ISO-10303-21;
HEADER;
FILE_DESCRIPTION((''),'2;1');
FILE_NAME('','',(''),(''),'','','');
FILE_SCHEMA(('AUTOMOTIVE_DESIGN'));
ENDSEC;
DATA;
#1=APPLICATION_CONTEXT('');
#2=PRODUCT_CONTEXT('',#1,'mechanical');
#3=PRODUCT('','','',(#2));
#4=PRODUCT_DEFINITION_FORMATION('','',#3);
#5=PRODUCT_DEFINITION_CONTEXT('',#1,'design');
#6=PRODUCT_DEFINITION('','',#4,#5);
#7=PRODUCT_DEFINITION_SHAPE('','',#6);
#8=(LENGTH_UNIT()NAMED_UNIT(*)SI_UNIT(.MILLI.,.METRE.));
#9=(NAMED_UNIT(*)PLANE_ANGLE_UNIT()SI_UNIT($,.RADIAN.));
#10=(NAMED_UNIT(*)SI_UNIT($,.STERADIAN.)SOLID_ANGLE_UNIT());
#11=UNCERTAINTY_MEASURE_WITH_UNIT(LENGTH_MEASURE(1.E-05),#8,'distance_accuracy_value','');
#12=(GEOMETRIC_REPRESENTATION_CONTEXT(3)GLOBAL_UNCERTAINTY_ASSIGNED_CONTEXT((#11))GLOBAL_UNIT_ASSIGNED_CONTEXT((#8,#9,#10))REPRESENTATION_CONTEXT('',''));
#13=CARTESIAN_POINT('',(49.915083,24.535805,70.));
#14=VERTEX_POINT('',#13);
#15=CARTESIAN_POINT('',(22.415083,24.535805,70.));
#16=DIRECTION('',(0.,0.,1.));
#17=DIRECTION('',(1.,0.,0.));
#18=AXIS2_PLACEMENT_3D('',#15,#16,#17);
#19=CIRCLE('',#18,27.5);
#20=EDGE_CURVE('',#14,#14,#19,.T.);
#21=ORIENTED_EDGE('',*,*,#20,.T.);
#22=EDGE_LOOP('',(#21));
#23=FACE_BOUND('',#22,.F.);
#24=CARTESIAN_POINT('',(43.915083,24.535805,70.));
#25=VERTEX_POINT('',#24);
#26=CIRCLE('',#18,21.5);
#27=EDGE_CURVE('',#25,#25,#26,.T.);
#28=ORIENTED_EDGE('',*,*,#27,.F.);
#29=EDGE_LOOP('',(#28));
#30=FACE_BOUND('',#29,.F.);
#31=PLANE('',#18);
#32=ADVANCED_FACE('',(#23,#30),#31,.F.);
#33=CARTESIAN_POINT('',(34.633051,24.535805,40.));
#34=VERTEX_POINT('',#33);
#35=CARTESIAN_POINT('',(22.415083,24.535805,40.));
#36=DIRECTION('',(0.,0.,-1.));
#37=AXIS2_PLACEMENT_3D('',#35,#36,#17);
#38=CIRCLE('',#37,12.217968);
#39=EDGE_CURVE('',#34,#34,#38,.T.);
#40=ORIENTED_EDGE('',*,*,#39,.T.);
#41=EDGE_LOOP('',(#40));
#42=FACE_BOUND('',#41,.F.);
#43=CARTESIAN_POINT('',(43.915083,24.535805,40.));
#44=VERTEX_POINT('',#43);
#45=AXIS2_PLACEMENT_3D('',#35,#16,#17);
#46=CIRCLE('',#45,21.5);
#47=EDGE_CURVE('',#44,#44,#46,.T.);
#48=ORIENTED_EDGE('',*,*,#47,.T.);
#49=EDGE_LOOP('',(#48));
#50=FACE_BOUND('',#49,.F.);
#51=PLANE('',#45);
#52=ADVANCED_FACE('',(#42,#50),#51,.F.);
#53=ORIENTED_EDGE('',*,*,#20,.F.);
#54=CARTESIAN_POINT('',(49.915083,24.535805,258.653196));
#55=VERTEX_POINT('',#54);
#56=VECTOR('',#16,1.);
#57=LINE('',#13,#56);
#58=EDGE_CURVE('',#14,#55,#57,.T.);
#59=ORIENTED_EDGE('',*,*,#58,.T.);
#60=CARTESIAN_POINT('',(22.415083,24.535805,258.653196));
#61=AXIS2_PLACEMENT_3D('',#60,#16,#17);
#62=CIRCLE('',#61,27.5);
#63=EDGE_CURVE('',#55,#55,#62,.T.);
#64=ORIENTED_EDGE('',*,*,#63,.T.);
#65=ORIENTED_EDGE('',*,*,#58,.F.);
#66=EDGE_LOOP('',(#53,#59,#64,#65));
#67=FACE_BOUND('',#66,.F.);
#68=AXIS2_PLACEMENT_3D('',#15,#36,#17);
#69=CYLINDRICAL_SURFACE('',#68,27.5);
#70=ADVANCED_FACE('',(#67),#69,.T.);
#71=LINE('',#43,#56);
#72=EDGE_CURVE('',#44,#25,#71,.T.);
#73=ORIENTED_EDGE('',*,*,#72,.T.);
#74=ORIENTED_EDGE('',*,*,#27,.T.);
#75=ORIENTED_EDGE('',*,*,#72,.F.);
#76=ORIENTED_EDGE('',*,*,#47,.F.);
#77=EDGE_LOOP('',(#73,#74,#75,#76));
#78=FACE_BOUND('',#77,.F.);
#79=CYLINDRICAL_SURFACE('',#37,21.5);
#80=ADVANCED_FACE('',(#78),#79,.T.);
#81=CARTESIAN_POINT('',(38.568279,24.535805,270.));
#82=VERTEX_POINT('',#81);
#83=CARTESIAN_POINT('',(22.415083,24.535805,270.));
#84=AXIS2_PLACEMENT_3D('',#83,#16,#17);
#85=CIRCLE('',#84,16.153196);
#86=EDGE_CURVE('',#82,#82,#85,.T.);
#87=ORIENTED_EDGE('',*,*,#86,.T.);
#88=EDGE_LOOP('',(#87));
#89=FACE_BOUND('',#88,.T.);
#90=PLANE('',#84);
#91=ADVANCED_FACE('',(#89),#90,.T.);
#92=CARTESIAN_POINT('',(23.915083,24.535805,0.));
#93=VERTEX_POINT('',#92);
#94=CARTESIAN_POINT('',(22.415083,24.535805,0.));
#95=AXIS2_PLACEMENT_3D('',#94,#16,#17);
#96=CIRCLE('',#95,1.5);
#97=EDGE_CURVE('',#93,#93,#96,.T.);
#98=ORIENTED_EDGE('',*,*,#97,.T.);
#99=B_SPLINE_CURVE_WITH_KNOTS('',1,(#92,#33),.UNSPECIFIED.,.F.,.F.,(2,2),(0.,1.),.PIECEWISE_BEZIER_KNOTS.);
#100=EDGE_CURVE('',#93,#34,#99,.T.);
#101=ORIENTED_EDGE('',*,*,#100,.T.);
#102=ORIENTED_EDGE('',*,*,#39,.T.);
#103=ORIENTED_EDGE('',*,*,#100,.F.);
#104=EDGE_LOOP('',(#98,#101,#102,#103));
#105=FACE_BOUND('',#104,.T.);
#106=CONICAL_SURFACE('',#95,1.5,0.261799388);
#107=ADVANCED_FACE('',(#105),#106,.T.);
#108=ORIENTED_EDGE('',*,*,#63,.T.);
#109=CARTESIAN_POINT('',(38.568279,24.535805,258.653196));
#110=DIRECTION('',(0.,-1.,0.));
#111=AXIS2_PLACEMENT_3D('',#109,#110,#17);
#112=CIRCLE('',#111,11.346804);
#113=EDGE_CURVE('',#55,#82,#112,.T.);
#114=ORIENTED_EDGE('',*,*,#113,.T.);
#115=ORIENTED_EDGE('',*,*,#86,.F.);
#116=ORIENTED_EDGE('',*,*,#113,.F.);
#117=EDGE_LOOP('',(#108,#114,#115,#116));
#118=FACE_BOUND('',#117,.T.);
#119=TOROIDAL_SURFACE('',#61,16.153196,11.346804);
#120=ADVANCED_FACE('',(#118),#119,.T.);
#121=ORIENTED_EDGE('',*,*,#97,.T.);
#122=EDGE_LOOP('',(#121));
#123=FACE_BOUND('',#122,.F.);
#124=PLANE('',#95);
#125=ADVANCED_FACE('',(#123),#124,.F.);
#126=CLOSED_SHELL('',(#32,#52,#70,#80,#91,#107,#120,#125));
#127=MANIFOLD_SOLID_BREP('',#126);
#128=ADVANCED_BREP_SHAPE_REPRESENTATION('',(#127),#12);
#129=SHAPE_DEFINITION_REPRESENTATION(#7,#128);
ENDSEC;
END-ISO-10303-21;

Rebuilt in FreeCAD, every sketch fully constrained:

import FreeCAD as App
import Part
import Sketcher


def edges_at(feature, points):
    """Names of the edges that pass closest to the given points."""
    edges = feature.Shape.Edges
    near = lambda p: min(range(len(edges)), key=lambda i: edges[i].distToShape(Part.Vertex(*p))[0])
    return sorted({f"Edge{near(p) + 1}" for p in points})

doc = App.newDocument("Part")
params = doc.addObject("Spreadsheet::Sheet", "Params")
for row, (alias, value) in enumerate([
    ("sketch1_diameter", "55 mm"),
    ("pad1_length", "200 mm"),
    ("sketch2_diameter", "43 mm"),
    ("pad2_length", "30 mm"),
    ("sketch3_diameter", "3 mm"),
    ("pad3_length", "40 mm"),
    ("pad3_taper", "15 deg"),
    ("fillet_radius", "11.346804 mm"),
], start=1):
    params.set(f"A{row}", alias)
    params.set(f"B{row}", "=" + value)
    params.setAlias(f"B{row}", alias)

body = doc.addObject("PartDesign::Body", "Body")

sketch1 = body.newObject("Sketcher::SketchObject", "Sketch")
sketch1.AttachmentSupport = (doc.getObject("XY_Plane"), [""])
sketch1.MapMode = "FlatFace"
sketch1.AttachmentOffset = App.Placement(App.Vector(0, 0, 70), App.Rotation())
sketch1.addGeometry(Part.Circle(App.Vector(22.415083, 24.535805, 0), App.Vector(0, 0, 1), 27.5), False)
sketch1.addConstraint([
    Sketcher.Constraint("Diameter", 0, 55.0),
    Sketcher.Constraint("DistanceX", -1, 1, 0, 3, 22.415083),
    Sketcher.Constraint("DistanceY", -1, 1, 0, 3, 24.535805),
])
sketch1.setExpression("Constraints[0]", "Params.sketch1_diameter")
pad1 = body.newObject("PartDesign::Pad", "Pad")
pad1.Profile = sketch1
pad1.setExpression("Length", "Params.pad1_length")

sketch2 = body.newObject("Sketcher::SketchObject", "Sketch001")
sketch2.AttachmentSupport = (doc.getObject("XY_Plane"), [""])
sketch2.MapMode = "FlatFace"
sketch2.AttachmentOffset = App.Placement(App.Vector(0, 0, 40), App.Rotation())
sketch2.addGeometry(Part.Circle(App.Vector(22.415083, 24.535805, 0), App.Vector(0, 0, 1), 21.5), False)
sketch2.addConstraint([
    Sketcher.Constraint("Diameter", 0, 43.0),
    Sketcher.Constraint("DistanceX", -1, 1, 0, 3, 22.415083),
    Sketcher.Constraint("DistanceY", -1, 1, 0, 3, 24.535805),
])
sketch2.setExpression("Constraints[0]", "Params.sketch2_diameter")
pad2 = body.newObject("PartDesign::Pad", "Pad001")
pad2.Profile = sketch2
pad2.setExpression("Length", "Params.pad2_length")

sketch3 = body.newObject("Sketcher::SketchObject", "Sketch002")
sketch3.AttachmentSupport = (doc.getObject("XY_Plane"), [""])
sketch3.MapMode = "FlatFace"
sketch3.addGeometry(Part.Circle(App.Vector(22.415083, 24.535805, 0), App.Vector(0, 0, 1), 1.5), False)
sketch3.addConstraint([
    Sketcher.Constraint("Diameter", 0, 3.0),
    Sketcher.Constraint("DistanceX", -1, 1, 0, 3, 22.415083),
    Sketcher.Constraint("DistanceY", -1, 1, 0, 3, 24.535805),
])
sketch3.setExpression("Constraints[0]", "Params.sketch3_diameter")
pad3 = body.newObject("PartDesign::Pad", "Pad002")
pad3.Profile = sketch3
pad3.setExpression("Length", "Params.pad3_length")
pad3.setExpression("TaperAngle", "Params.pad3_taper")
doc.recompute()

fillet = body.newObject("PartDesign::Fillet", "Fillet")
fillet.Base = (pad3, edges_at(pad3, [(-5.085, 24.536, 270)]))
fillet.setExpression("Radius", "Params.fillet_radius")

doc.recompute()
